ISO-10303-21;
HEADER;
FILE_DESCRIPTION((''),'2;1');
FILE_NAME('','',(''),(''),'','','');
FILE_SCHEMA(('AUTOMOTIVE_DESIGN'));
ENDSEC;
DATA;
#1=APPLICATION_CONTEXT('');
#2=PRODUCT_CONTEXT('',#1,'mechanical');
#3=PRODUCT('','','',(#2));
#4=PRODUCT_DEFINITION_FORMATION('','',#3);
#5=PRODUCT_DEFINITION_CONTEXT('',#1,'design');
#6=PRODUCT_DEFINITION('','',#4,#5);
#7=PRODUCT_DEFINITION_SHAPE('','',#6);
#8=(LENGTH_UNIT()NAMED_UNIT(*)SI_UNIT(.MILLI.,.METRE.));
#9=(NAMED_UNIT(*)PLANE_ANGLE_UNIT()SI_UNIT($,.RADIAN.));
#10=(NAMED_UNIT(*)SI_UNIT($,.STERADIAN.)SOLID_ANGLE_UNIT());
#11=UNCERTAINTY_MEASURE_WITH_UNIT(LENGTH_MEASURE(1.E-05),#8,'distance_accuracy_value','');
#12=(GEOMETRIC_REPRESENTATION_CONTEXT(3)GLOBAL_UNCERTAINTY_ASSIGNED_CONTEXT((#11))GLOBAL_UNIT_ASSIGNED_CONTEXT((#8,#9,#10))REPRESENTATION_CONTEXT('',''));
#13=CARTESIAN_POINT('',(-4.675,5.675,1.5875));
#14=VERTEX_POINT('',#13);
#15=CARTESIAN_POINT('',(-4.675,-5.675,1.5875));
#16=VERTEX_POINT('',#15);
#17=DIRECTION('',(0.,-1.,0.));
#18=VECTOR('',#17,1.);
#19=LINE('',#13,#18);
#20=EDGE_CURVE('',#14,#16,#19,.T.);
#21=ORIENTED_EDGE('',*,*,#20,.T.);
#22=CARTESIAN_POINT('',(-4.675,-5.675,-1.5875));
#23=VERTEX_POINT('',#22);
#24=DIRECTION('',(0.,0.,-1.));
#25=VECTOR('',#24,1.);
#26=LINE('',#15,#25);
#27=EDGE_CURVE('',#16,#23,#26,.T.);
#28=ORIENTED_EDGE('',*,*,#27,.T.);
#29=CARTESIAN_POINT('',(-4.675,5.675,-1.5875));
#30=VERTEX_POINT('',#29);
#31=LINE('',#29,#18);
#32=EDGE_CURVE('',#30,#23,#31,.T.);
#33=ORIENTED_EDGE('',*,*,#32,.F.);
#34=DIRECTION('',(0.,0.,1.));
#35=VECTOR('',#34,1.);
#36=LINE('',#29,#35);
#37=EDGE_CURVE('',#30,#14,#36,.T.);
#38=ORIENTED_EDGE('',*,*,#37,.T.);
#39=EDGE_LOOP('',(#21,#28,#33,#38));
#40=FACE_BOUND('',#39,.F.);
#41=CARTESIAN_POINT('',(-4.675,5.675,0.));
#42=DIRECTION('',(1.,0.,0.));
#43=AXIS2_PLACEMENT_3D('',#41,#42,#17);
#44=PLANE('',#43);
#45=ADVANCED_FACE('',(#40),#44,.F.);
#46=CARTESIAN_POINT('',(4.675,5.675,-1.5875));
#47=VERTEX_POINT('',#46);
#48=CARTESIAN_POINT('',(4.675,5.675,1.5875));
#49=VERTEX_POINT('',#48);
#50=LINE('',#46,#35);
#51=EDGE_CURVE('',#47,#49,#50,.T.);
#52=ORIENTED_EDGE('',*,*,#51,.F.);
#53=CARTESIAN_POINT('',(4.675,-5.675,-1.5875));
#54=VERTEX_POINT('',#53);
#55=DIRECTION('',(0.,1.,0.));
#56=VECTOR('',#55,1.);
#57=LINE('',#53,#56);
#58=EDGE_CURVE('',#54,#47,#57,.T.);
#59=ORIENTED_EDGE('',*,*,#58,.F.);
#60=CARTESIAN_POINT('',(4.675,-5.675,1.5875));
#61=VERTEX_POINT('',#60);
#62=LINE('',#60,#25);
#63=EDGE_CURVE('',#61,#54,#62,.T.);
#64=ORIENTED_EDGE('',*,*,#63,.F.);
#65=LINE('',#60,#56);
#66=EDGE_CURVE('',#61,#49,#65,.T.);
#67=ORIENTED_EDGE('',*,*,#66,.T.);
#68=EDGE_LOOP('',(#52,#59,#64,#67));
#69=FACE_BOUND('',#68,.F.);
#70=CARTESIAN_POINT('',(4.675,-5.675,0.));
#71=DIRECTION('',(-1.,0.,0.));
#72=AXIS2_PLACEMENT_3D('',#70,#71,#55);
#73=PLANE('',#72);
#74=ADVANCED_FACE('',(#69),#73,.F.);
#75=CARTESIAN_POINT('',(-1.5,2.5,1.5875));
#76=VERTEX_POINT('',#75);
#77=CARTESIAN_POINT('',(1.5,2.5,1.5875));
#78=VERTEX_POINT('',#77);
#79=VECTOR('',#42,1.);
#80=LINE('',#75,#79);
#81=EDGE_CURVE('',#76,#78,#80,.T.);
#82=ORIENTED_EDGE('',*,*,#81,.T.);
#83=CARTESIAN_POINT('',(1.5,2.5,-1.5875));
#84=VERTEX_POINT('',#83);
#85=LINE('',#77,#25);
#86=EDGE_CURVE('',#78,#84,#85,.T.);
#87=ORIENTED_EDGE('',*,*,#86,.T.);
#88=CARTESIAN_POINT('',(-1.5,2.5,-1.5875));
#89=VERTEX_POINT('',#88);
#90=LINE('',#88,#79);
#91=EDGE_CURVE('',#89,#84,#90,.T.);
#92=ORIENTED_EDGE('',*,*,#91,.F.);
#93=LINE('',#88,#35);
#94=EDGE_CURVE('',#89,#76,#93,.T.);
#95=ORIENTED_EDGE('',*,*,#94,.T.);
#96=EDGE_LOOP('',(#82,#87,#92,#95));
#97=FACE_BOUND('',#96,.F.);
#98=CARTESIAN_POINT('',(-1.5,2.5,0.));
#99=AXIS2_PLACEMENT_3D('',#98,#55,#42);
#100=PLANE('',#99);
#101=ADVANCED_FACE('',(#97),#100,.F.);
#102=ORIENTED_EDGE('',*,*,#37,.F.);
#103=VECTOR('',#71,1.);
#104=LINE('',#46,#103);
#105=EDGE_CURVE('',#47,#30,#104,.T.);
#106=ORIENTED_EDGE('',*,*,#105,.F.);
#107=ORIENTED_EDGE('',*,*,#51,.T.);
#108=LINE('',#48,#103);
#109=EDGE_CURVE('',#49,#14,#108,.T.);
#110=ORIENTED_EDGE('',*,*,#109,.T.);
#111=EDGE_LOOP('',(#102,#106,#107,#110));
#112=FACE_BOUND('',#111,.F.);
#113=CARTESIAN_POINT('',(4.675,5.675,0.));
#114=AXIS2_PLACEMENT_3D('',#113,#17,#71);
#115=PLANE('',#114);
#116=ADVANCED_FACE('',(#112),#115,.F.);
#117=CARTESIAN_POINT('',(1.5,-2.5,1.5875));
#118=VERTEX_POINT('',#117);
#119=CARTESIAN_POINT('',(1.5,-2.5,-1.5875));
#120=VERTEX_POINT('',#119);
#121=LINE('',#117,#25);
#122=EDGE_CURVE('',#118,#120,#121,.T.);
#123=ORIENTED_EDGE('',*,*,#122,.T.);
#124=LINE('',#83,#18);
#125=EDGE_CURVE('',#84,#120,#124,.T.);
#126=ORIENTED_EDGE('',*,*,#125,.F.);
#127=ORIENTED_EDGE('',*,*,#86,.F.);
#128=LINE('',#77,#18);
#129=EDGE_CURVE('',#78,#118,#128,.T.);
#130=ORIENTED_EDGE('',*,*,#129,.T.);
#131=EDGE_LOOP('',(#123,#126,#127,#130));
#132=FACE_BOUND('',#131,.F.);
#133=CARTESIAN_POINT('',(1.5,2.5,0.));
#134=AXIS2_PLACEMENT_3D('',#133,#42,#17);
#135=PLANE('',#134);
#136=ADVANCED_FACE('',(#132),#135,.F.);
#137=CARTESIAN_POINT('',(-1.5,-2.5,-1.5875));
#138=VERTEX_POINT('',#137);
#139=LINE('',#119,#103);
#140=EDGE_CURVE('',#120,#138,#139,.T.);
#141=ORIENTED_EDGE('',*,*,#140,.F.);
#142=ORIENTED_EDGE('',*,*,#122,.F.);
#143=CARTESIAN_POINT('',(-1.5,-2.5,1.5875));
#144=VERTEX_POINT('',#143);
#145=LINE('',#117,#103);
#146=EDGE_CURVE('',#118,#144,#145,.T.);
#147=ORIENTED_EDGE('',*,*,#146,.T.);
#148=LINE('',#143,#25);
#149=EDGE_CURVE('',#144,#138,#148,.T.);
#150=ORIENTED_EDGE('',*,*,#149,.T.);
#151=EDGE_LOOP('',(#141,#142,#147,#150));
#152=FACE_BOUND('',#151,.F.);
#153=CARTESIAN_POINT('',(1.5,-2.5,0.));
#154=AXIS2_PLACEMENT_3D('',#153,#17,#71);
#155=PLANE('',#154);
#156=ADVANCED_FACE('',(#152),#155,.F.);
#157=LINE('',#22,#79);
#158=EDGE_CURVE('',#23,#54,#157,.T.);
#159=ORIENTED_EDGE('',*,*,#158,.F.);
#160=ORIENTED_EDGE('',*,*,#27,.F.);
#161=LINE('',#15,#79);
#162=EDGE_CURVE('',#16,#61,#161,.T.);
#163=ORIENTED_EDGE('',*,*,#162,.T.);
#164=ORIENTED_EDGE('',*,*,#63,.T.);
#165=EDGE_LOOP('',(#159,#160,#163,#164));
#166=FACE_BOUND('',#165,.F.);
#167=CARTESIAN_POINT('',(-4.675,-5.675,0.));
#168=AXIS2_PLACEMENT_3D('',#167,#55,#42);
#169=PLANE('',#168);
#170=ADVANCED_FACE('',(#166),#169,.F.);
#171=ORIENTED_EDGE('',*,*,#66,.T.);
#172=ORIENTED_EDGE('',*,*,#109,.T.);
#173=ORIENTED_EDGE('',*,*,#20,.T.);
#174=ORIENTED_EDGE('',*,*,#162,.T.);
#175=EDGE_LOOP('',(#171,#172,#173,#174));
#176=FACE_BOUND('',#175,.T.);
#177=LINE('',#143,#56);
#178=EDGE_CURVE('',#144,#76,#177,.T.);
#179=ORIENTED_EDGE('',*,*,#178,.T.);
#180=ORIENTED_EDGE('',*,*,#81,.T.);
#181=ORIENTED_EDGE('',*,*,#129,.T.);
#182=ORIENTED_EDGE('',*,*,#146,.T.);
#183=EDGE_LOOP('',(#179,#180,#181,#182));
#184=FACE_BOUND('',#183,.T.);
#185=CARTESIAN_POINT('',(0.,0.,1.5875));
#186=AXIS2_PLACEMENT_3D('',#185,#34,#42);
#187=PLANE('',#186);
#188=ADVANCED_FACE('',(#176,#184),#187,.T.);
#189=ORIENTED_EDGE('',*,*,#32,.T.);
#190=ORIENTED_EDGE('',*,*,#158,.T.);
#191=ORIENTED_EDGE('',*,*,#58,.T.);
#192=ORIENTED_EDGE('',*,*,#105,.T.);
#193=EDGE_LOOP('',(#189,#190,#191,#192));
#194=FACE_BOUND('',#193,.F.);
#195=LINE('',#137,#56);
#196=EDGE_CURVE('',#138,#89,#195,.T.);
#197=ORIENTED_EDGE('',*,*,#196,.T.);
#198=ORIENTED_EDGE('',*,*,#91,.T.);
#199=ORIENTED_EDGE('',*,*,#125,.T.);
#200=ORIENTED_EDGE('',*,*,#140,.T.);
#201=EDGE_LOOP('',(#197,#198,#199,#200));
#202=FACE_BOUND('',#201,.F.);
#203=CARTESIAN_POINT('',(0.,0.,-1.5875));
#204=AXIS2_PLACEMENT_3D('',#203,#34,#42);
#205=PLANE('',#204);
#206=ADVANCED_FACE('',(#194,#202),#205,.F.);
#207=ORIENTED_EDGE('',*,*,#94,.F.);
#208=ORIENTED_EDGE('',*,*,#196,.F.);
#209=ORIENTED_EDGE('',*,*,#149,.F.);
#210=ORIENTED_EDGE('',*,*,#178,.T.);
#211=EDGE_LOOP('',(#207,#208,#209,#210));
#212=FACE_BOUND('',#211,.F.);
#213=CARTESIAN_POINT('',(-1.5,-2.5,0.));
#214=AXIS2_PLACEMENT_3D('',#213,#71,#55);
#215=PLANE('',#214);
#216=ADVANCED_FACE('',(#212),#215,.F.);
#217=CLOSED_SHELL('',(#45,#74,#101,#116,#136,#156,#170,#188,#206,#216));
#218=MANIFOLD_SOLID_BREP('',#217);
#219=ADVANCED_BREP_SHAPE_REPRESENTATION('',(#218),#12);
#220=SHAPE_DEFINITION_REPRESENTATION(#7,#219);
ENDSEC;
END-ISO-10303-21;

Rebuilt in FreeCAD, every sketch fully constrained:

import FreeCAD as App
import Part
import Sketcher

V = App.Vector

doc = App.newDocument("Part")
body = doc.addObject("PartDesign::Body", "Body")

# Sketch on XY plane
sketch1 = body.newObject("Sketcher::SketchObject", "Sketch")
sketch1.AttachmentSupport = (doc.getObject("XY_Plane"), [""])
sketch1.MapMode = "FlatFace"
sketch1.addGeometry([
    Part.LineSegment(V(4.7, -5.7, 0), V(4.7, 5.7, 0)),  # 0
    Part.LineSegment(V(4.7, 5.7, 0), V(-4.7, 5.7, 0)),  # 1
    Part.LineSegment(V(-4.7, 5.7, 0), V(-4.7, -5.7, 0)),  # 2
    Part.LineSegment(V(-4.7, -5.7, 0), V(4.7, -5.7, 0)),  # 3
    Part.LineSegment(V(-1.5, -2.5, 0), V(-1.5, 2.5, 0)),  # 4
    Part.LineSegment(V(-1.5, 2.5, 0), V(1.5, 2.5, 0)),  # 5
    Part.LineSegment(V(1.5, 2.5, 0), V(1.5, -2.5, 0)),  # 6
    Part.LineSegment(V(1.5, -2.5, 0), V(-1.5, -2.5, 0)),  # 7
], False)
sketch1.addConstraint([
    Sketcher.Constraint("Coincident", 0, 2, 1, 1),
    Sketcher.Constraint("Coincident", 1, 2, 2, 1),
    Sketcher.Constraint("Coincident", 2, 2, 3, 1),
    Sketcher.Constraint("Coincident", 3, 2, 0, 1),
    Sketcher.Constraint("Coincident", 4, 2, 5, 1),
    Sketcher.Constraint("Coincident", 5, 2, 6, 1),
    Sketcher.Constraint("Coincident", 6, 2, 7, 1),
    Sketcher.Constraint("Coincident", 7, 2, 4, 1),
    Sketcher.Constraint("Vertical", 0),
    Sketcher.Constraint("Horizontal", 1),
    Sketcher.Constraint("Vertical", 2),
    Sketcher.Constraint("Horizontal", 3),
    Sketcher.Constraint("Vertical", 4),
    Sketcher.Constraint("Horizontal", 5),
    Sketcher.Constraint("Vertical", 6),
    Sketcher.Constraint("Horizontal", 7),
    Sketcher.Constraint("Symmetric", 0, 2, 2, 2, -1, 1),
    Sketcher.Constraint("Symmetric", 4, 2, 6, 2, -1, 1),
    Sketcher.Constraint("DistanceX", 5, 1, 5, 2, 3.0),
    Sketcher.Constraint("DistanceY", 4, 1, 4, 2, 5.0),
    Sketcher.Constraint("DistanceX", 1, 2, 4, 2, 3.175),
    Sketcher.Constraint("DistanceY", 4, 2, 1, 2, 3.175),
])
pad1 = body.newObject("PartDesign::Pad", "Pad")
pad1.Profile = sketch1
pad1.Length = 3.175
pad1.Midplane = True

doc.recompute()
